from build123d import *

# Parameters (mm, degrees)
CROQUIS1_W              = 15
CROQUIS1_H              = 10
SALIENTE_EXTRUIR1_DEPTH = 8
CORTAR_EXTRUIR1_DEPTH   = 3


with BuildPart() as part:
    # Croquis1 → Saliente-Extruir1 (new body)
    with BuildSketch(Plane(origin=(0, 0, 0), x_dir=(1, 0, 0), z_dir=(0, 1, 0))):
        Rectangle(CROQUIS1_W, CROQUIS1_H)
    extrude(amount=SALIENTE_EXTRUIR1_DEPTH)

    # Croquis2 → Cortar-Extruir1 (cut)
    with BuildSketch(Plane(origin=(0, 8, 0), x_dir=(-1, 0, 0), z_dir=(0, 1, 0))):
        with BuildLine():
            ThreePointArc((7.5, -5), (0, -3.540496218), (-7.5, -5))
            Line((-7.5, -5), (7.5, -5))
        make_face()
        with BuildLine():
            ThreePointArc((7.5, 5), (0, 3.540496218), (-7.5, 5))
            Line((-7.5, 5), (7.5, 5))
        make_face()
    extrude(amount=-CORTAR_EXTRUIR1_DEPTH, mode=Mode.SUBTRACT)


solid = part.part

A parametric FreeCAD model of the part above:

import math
import FreeCAD as App
import Part
import Sketcher

V = App.Vector

doc = App.newDocument("Part")
body = doc.addObject("PartDesign::Body", "Body")

sketch1 = body.newObject("Sketcher::SketchObject", "Sketch")
sketch1.AttachmentSupport = (doc.getObject("XZ_Plane"), [""])
sketch1.MapMode = "FlatFace"
sketch1.addGeometry([
    Part.LineSegment(V(-8, -5, 0), V(-8, 5, 0)),
    Part.LineSegment(V(-8, 5, 0), V(8, 5, 0)),
    Part.LineSegment(V(8, 5, 0), V(8, -5, 0)),
    Part.LineSegment(V(8, -5, 0), V(-8, -5, 0)),
], False)
sketch1.addConstraint([
    Sketcher.Constraint("Coincident", 0, 2, 1, 1),
    Sketcher.Constraint("Coincident", 1, 2, 2, 1),
    Sketcher.Constraint("Coincident", 2, 2, 3, 1),
    Sketcher.Constraint("Coincident", 3, 2, 0, 1),
    Sketcher.Constraint("Vertical", 0),
    Sketcher.Constraint("Horizontal", 1),
    Sketcher.Constraint("Vertical", 2),
    Sketcher.Constraint("Horizontal", 3),
    Sketcher.Constraint("Symmetric", 0, 2, 2, 2, -1, 1),
    Sketcher.Constraint("DistanceX", 1, 1, 1, 2, 15.0),
    Sketcher.Constraint("DistanceY", 0, 1, 0, 2, 10.0),
])
pad1 = body.newObject("PartDesign::Pad", "Pad")
pad1.Profile = sketch1
pad1.Length = 8
pad1.Reversed = True

sketch2 = body.newObject("Sketcher::SketchObject", "Sketch001")
sketch2.AttachmentSupport = (doc.getObject("XZ_Plane"), [""])
sketch2.MapMode = "FlatFace"
sketch2.AttachmentOffset = App.Placement(V(0, 0, -8), App.Rotation())
sketch2.addGeometry([
    Part.ArcOfCircle(Part.Circle(V(0, -24, 0), V(0, 0, 1), 20), math.radians(68), math.radians(112)),
    Part.LineSegment(V(8, -5, 0), V(-8, -5, 0)),
    Part.ArcOfCircle(Part.Circle(V(0, 24, 0), V(0, 0, 1), 20), math.radians(-112), math.radians(-68)),
    Part.LineSegment(V(-8, 5, 0), V(8, 5, 0)),
], False)
sketch2.addConstraint([
    Sketcher.Constraint("Coincident", 0, 1, 1, 1),
    Sketcher.Constraint("Coincident", 1, 2, 0, 2),
    Sketcher.Constraint("Coincident", 2, 1, 3, 1),
    Sketcher.Constraint("Coincident", 3, 2, 2, 2),
    Sketcher.Constraint("Horizontal", 1),
    Sketcher.Constraint("Horizontal", 3),
    Sketcher.Constraint("Equal", 0, 2),
    Sketcher.Constraint("Symmetric", 0, 3, 2, 3, -1, 1),
    Sketcher.Constraint("Symmetric", 1, 2, 2, 1, -1),
    Sketcher.Constraint("Radius", 0, 20.0),
    Sketcher.Constraint("DistanceX", 1, 2, 1, 1, 15.0),
    Sketcher.Constraint("DistanceY", 0, 1, -1, 1, 5.0),
])
pocket1 = body.newObject("PartDesign::Pocket", "Pocket")
pocket1.Profile = sketch2
pocket1.Length = 3
pocket1.Reversed = True

doc.recompute()
